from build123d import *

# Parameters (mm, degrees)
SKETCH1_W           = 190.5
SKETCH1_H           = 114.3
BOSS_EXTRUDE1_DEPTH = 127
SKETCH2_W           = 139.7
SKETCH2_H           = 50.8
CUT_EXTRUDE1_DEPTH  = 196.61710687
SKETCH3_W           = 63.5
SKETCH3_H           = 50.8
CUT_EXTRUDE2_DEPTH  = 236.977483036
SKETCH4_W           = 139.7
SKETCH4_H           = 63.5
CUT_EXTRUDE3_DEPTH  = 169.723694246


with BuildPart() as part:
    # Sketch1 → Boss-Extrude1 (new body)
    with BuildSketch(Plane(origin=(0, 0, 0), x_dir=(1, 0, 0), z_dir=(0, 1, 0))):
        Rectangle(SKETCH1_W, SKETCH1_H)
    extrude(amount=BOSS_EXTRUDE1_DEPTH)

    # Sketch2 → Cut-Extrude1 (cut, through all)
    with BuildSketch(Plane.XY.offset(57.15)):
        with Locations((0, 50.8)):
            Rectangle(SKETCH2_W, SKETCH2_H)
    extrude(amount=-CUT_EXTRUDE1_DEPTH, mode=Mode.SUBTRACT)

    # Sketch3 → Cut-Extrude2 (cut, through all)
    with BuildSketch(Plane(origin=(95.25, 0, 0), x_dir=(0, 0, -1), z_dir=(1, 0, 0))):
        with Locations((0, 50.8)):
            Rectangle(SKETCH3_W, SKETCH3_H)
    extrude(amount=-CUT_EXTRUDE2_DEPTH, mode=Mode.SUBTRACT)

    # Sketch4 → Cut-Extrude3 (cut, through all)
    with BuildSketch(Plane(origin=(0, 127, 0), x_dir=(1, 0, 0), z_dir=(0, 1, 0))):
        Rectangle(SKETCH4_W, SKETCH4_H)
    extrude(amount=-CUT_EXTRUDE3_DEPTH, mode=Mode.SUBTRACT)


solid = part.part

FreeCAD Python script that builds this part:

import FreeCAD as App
import Part
import Sketcher
from FreeCAD import Vector
Q = App.Units.Quantity


def add_polygon(sketch, points):
    """Adds a closed chain of lines whose ends are joined by coincident constraints."""
    first, n = sketch.GeometryCount, len(points)
    for a, b in zip(points, points[1:] + points[:1]):
        sketch.addGeometry(Part.LineSegment(App.Vector(*a, 0), App.Vector(*b, 0)), False)
    for i in range(n):
        sketch.addConstraint(Sketcher.Constraint("Coincident", first + i, 2, first + (i + 1) % n, 1))

doc = App.newDocument("Part")
body = doc.addObject("PartDesign::Body", "Body")

# Sketch on XZ plane
sketch1 = doc.addObject("Sketcher::SketchObject", "Sketch")
body.addObject(sketch1)
sketch1.AttachmentSupport = (doc.XZ_Plane, [""])
sketch1.MapMode = "FlatFace"
add_polygon(sketch1, [(-95, -57), (-95, 57), (95, 57), (95, -57)])  # lines 0-3
sketch1.addConstraint([
    Sketcher.Constraint("Vertical", 0),
    Sketcher.Constraint("Horizontal", 1),
    Sketcher.Constraint("Vertical", 2),
    Sketcher.Constraint("Horizontal", 3),
    Sketcher.Constraint("Symmetric", 0, 2, 2, 2, -1, 1),
    Sketcher.Constraint("DistanceX", 1, 1, 1, 2, Q("7.5 in")),
    Sketcher.Constraint("DistanceY", 0, 1, 0, 2, Q("4.5 in")),
])
pad1 = doc.addObject("PartDesign::Pad", "Pad")
body.addObject(pad1)
pad1.Profile = sketch1
pad1.Length = Q("5 in")
pad1.Reversed = True

# Sketch on XY plane
sketch2 = doc.addObject("Sketcher::SketchObject", "Sketch001")
body.addObject(sketch2)
sketch2.AttachmentSupport = (doc.XY_Plane, [""])
sketch2.MapMode = "FlatFace"
sketch2.AttachmentOffset = App.Placement(Vector(0, 0, 2.25 * 25.4), App.Rotation())
add_polygon(sketch2, [(-70, 76), (-70, 25), (70, 25), (70, 76)])  # lines 0-3
sketch2.addConstraint([
    Sketcher.Constraint("Vertical", 0),
    Sketcher.Constraint("Horizontal", 1),
    Sketcher.Constraint("Vertical", 2),
    Sketcher.Constraint("Horizontal", 3),
    Sketcher.Constraint("DistanceY", 0, 2, 0, 1, Q("2 in")),
    Sketcher.Constraint("DistanceX", 1, 1, 1, 2, Q("5.5 in")),
    Sketcher.Constraint("DistanceY", -1, 1, 0, 2, Q("1 in")),
    Sketcher.Constraint("DistanceX", 0, 2, -1, 1, Q("2.75 in")),
])
pocket1 = doc.addObject("PartDesign::Pocket", "Pocket")
body.addObject(pocket1)
pocket1.Profile = sketch2
pocket1.Type = "ThroughAll"

# Sketch on YZ plane
sketch3 = doc.addObject("Sketcher::SketchObject", "Sketch002")
body.addObject(sketch3)
sketch3.AttachmentSupport = (doc.YZ_Plane, [""])
sketch3.MapMode = "FlatFace"
sketch3.AttachmentOffset = App.Placement(Vector(0, 0, 3.75 * 25.4), App.Rotation())
add_polygon(sketch3, [(76, 32), (25, 32), (25, -32), (76, -32)])  # lines 0-3
sketch3.addConstraint([
    Sketcher.Constraint("Horizontal", 0),
    Sketcher.Constraint("Vertical", 1),
    Sketcher.Constraint("Horizontal", 2),
    Sketcher.Constraint("Vertical", 3),
    Sketcher.Constraint("DistanceX", 0, 2, 0, 1, Q("2 in")),
    Sketcher.Constraint("DistanceY", 1, 2, 1, 1, Q("2.5 in")),
    Sketcher.Constraint("DistanceX", -1, 1, 0, 2, Q("1 in")),
    Sketcher.Constraint("DistanceY", -1, 1, 0, 2, Q("1.25 in")),
])
pocket2 = doc.addObject("PartDesign::Pocket", "Pocket001")
body.addObject(pocket2)
pocket2.Profile = sketch3
pocket2.Type = "ThroughAll"

# Sketch on XZ plane
sketch4 = doc.addObject("Sketcher::SketchObject", "Sketch003")
body.addObject(sketch4)
sketch4.AttachmentSupport = (doc.XZ_Plane, [""])
sketch4.MapMode = "FlatFace"
sketch4.AttachmentOffset = App.Placement(Vector(0, 0, -5 * 25.4), App.Rotation())
add_polygon(sketch4, [(-70, -32), (-70, 32), (70, 32), (70, -32)])  # lines 0-3
sketch4.addConstraint([
    Sketcher.Constraint("Vertical", 0),
    Sketcher.Constraint("Horizontal", 1),
    Sketcher.Constraint("Vertical", 2),
    Sketcher.Constraint("Horizontal", 3),
    Sketcher.Constraint("Symmetric", 0, 2, 2, 2, -1, 1),
    Sketcher.Constraint("DistanceX", 1, 1, 1, 2, Q("5.5 in")),
    Sketcher.Constraint("DistanceY", 0, 1, 0, 2, Q("2.5 in")),
])
pocket3 = doc.addObject("PartDesign::Pocket", "Pocket002")
body.addObject(pocket3)
pocket3.Profile = sketch4
pocket3.Type = "ThroughAll"
pocket3.Reversed = True

doc.recompute()
